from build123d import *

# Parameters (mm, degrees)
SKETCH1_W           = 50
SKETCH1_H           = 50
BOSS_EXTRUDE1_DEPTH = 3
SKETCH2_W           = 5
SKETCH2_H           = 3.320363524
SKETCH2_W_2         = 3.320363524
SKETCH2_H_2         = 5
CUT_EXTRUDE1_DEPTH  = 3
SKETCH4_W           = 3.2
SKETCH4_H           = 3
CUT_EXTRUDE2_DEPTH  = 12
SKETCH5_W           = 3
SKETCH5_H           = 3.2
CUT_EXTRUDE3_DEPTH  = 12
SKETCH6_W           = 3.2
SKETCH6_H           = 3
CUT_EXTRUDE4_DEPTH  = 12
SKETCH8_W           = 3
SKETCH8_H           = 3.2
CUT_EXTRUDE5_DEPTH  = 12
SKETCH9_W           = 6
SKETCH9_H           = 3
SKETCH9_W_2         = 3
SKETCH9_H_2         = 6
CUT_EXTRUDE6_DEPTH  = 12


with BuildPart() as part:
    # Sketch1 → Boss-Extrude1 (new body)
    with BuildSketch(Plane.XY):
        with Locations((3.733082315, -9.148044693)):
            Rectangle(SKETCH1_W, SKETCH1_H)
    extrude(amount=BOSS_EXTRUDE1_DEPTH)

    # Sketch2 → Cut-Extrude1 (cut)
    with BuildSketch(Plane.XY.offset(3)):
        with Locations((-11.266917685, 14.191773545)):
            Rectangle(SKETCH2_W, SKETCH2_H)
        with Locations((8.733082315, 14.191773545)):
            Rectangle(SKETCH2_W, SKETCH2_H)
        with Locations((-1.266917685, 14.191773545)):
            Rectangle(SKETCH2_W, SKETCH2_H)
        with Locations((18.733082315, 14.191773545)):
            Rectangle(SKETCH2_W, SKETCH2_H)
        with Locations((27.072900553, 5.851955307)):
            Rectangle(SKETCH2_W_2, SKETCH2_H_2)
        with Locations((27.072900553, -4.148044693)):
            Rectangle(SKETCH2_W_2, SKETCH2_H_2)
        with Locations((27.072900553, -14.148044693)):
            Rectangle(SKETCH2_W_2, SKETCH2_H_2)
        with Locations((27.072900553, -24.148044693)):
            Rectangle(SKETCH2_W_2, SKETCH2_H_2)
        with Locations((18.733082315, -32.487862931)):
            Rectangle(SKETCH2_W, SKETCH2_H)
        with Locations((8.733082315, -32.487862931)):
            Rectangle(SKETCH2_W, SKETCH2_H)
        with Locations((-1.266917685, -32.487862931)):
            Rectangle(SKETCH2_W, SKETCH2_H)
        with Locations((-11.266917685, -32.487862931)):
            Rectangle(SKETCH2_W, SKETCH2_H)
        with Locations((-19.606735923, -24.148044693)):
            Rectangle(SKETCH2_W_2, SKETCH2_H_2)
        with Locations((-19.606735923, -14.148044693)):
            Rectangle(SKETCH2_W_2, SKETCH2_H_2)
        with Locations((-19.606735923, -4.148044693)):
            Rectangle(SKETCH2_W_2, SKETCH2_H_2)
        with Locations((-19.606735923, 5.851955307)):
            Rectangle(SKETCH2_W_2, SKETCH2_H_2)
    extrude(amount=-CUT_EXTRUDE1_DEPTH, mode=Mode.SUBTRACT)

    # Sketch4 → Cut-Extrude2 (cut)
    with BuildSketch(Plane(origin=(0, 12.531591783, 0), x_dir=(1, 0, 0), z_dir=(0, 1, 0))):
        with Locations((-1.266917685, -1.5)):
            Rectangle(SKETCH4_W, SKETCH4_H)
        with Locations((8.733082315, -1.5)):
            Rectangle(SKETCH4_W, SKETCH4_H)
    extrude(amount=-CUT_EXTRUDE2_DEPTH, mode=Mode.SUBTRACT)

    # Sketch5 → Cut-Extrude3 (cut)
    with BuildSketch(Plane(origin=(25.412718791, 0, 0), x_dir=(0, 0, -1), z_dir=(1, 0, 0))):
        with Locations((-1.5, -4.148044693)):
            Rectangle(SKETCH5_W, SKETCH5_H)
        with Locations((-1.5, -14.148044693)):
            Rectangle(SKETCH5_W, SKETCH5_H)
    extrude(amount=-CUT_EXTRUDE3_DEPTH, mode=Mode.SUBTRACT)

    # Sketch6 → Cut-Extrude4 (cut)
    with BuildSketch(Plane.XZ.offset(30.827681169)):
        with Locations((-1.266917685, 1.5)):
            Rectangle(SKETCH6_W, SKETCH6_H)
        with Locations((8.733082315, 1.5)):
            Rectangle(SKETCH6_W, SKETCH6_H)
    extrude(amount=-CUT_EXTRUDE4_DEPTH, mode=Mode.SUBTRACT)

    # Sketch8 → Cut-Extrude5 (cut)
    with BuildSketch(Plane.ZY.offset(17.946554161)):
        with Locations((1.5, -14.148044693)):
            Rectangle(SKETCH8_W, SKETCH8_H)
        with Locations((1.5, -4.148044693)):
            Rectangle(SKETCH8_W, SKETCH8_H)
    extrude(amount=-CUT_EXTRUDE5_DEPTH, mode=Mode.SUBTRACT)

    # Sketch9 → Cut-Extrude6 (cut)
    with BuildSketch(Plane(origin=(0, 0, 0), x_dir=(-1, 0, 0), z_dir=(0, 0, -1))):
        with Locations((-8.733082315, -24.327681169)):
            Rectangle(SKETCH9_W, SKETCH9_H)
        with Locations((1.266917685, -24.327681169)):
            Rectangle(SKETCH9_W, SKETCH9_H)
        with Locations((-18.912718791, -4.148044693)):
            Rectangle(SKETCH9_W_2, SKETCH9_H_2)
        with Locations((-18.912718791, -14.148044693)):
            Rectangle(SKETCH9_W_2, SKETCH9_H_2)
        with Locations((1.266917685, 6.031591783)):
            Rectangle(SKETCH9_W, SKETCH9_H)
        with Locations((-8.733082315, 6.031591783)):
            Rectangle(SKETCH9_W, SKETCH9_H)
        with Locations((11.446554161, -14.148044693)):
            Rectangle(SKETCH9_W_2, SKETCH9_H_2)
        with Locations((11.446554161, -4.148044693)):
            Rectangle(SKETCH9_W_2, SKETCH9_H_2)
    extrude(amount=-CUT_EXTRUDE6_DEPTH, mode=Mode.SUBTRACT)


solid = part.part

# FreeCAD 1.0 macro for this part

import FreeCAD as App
import Part
import Sketcher
from FreeCAD import Vector

doc = App.newDocument("Part")
body = doc.addObject("PartDesign::Body", "Body")

sketch1 = body.newObject("Sketcher::SketchObject", "Sketch")
sketch1.AttachmentSupport = (doc.getObject("XY_Plane"), [""])
sketch1.MapMode = "FlatFace"
sketch1.addGeometry([
    Part.LineSegment(Vector(-21, 16, 0), Vector(-21, -34, 0)),
    Part.LineSegment(Vector(-21, -34, 0), Vector(29, -34, 0)),
    Part.LineSegment(Vector(29, -34, 0), Vector(29, 16, 0)),
    Part.LineSegment(Vector(29, 16, 0), Vector(-21, 16, 0)),
], False)
sketch1.addConstraint([
    Sketcher.Constraint("Coincident", 0, 2, 1, 1),
    Sketcher.Constraint("Coincident", 1, 2, 2, 1),
    Sketcher.Constraint("Coincident", 2, 2, 3, 1),
    Sketcher.Constraint("Coincident", 3, 2, 0, 1),
    Sketcher.Constraint("Vertical", 0),
    Sketcher.Constraint("Horizontal", 1),
    Sketcher.Constraint("Vertical", 2),
    Sketcher.Constraint("Horizontal", 3),
    Sketcher.Constraint("Equal", 3, 0),
    Sketcher.Constraint("DistanceX", 1, 1, 1, 2, 50.0),
    Sketcher.Constraint("DistanceX", 0, 2, -1, 1, 21.266918),
    Sketcher.Constraint("DistanceY", 0, 2, -1, 1, 34.148045),
])
pad1 = body.newObject("PartDesign::Pad", "Pad")
pad1.Profile = sketch1
pad1.Length = 3

sketch2 = body.newObject("Sketcher::SketchObject", "Sketch001")
sketch2.AttachmentSupport = (doc.getObject("XY_Plane"), [""])
sketch2.MapMode = "FlatFace"
sketch2.AttachmentOffset = App.Placement(Vector(0, 0, 3), App.Rotation())
sketch2.addGeometry([
    Part.LineSegment(Vector(-13.8, 15.9, 0), Vector(-13.8, 12.5, 0)),
    Part.LineSegment(Vector(-13.8, 12.5, 0), Vector(-8.8, 12.5, 0)),
    Part.LineSegment(Vector(-8.8, 12.5, 0), Vector(-8.8, 15.9, 0)),
    Part.LineSegment(Vector(-8.8, 15.9, 0), Vector(-13.8, 15.9, 0)),
    Part.LineSegment(Vector(6.2, 15.9, 0), Vector(6.2, 12.5, 0)),
    Part.LineSegment(Vector(6.2, 12.5, 0), Vector(11.2, 12.5, 0)),
    Part.LineSegment(Vector(11.2, 12.5, 0), Vector(11.2, 15.9, 0)),
    Part.LineSegment(Vector(11.2, 15.9, 0), Vector(6.2, 15.9, 0)),
    Part.LineSegment(Vector(-3.8, 15.9, 0), Vector(-3.8, 12.5, 0)),
    Part.LineSegment(Vector(-3.8, 12.5, 0), Vector(1.2, 12.5, 0)),
    Part.LineSegment(Vector(1.2, 12.5, 0), Vector(1.2, 15.9, 0)),
    Part.LineSegment(Vector(1.2, 15.9, 0), Vector(-3.8, 15.9, 0)),
    Part.LineSegment(Vector(16.2, 15.9, 0), Vector(16.2, 12.5, 0)),
    Part.LineSegment(Vector(16.2, 12.5, 0), Vector(21.2, 12.5, 0)),
    Part.LineSegment(Vector(21.2, 12.5, 0), Vector(21.2, 15.9, 0)),
    Part.LineSegment(Vector(21.2, 15.9, 0), Vector(16.2, 15.9, 0)),
    Part.LineSegment(Vector(25.4, 8.4, 0), Vector(25.4, 3.4, 0)),
    Part.LineSegment(Vector(25.4, 3.4, 0), Vector(28.7, 3.4, 0)),
    Part.LineSegment(Vector(28.7, 3.4, 0), Vector(28.7, 8.4, 0)),
    Part.LineSegment(Vector(28.7, 8.4, 0), Vector(25.4, 8.4, 0)),
    Part.LineSegment(Vector(25.4, -1.6, 0), Vector(25.4, -6.6, 0)),
    Part.LineSegment(Vector(25.4, -6.6, 0), Vector(28.7, -6.6, 0)),
    Part.LineSegment(Vector(28.7, -6.6, 0), Vector(28.7, -1.6, 0)),
    Part.LineSegment(Vector(28.7, -1.6, 0), Vector(25.4, -1.6, 0)),
    Part.LineSegment(Vector(25.4, -11.6, 0), Vector(25.4, -16.6, 0)),
    Part.LineSegment(Vector(25.4, -16.6, 0), Vector(28.7, -16.6, 0)),
    Part.LineSegment(Vector(28.7, -16.6, 0), Vector(28.7, -11.6, 0)),
    Part.LineSegment(Vector(28.7, -11.6, 0), Vector(25.4, -11.6, 0)),
    Part.LineSegment(Vector(25.4, -21.6, 0), Vector(25.4, -26.6, 0)),
    Part.LineSegment(Vector(25.4, -26.6, 0), Vector(28.7, -26.6, 0)),
    Part.LineSegment(Vector(28.7, -26.6, 0), Vector(28.7, -21.6, 0)),
    Part.LineSegment(Vector(28.7, -21.6, 0), Vector(25.4, -21.6, 0)),
    Part.LineSegment(Vector(16.2, -30.8, 0), Vector(16.2, -34.1, 0)),
    Part.LineSegment(Vector(16.2, -34.1, 0), Vector(21.2, -34.1, 0)),
    Part.LineSegment(Vector(21.2, -34.1, 0), Vector(21.2, -30.8, 0)),
    Part.LineSegment(Vector(21.2, -30.8, 0), Vector(16.2, -30.8, 0)),
    Part.LineSegment(Vector(6.2, -30.8, 0), Vector(6.2, -34.1, 0)),
    Part.LineSegment(Vector(6.2, -34.1, 0), Vector(11.2, -34.1, 0)),
    Part.LineSegment(Vector(11.2, -34.1, 0), Vector(11.2, -30.8, 0)),
    Part.LineSegment(Vector(11.2, -30.8, 0), Vector(6.2, -30.8, 0)),
    Part.LineSegment(Vector(-3.8, -30.8, 0), Vector(-3.8, -34.1, 0)),
    Part.LineSegment(Vector(-3.8, -34.1, 0), Vector(1.2, -34.1, 0)),
    Part.LineSegment(Vector(1.2, -34.1, 0), Vector(1.2, -30.8, 0)),
    Part.LineSegment(Vector(1.2, -30.8, 0), Vector(-3.8, -30.8, 0)),
    Part.LineSegment(Vector(-13.8, -30.8, 0), Vector(-13.8, -34.1, 0)),
    Part.LineSegment(Vector(-13.8, -34.1, 0), Vector(-8.8, -34.1, 0)),
    Part.LineSegment(Vector(-8.8, -34.1, 0), Vector(-8.8, -30.8, 0)),
    Part.LineSegment(Vector(-8.8, -30.8, 0), Vector(-13.8, -30.8, 0)),
    Part.LineSegment(Vector(-21.3, -21.6, 0), Vector(-21.3, -26.6, 0)),
    Part.LineSegment(Vector(-21.3, -26.6, 0), Vector(-17.9, -26.6, 0)),
    Part.LineSegment(Vector(-17.9, -26.6, 0), Vector(-17.9, -21.6, 0)),
    Part.LineSegment(Vector(-17.9, -21.6, 0), Vector(-21.3, -21.6, 0)),
    Part.LineSegment(Vector(-21.3, -11.6, 0), Vector(-21.3, -16.6, 0)),
    Part.LineSegment(Vector(-21.3, -16.6, 0), Vector(-17.9, -16.6, 0)),
    Part.LineSegment(Vector(-17.9, -16.6, 0), Vector(-17.9, -11.6, 0)),
    Part.LineSegment(Vector(-17.9, -11.6, 0), Vector(-21.3, -11.6, 0)),
    Part.LineSegment(Vector(-21.3, -1.6, 0), Vector(-21.3, -6.6, 0)),
    Part.LineSegment(Vector(-21.3, -6.6, 0), Vector(-17.9, -6.6, 0)),
    Part.LineSegment(Vector(-17.9, -6.6, 0), Vector(-17.9, -1.6, 0)),
    Part.LineSegment(Vector(-17.9, -1.6, 0), Vector(-21.3, -1.6, 0)),
    Part.LineSegment(Vector(-21.3, 8.4, 0), Vector(-21.3, 3.4, 0)),
    Part.LineSegment(Vector(-21.3, 3.4, 0), Vector(-17.9, 3.4, 0)),
    Part.LineSegment(Vector(-17.9, 3.4, 0), Vector(-17.9, 8.4, 0)),
    Part.LineSegment(Vector(-17.9, 8.4, 0), Vector(-21.3, 8.4, 0)),
], False)
sketch2.addConstraint([
    Sketcher.Constraint("Coincident", 0, 2, 1, 1),
    Sketcher.Constraint("Coincident", 1, 2, 2, 1),
    Sketcher.Constraint("Coincident", 2, 2, 3, 1),
    Sketcher.Constraint("Coincident", 3, 2, 0, 1),
    Sketcher.Constraint("Coincident", 4, 2, 5, 1),
    Sketcher.Constraint("Coincident", 5, 2, 6, 1),
    Sketcher.Constraint("Coincident", 6, 2, 7, 1),
    Sketcher.Constraint("Coincident", 7, 2, 4, 1),
    Sketcher.Constraint("Coincident", 8, 2, 9, 1),
    Sketcher.Constraint("Coincident", 9, 2, 10, 1),
    Sketcher.Constraint("Coincident", 10, 2, 11, 1),
    Sketcher.Constraint("Coincident", 11, 2, 8, 1),
    Sketcher.Constraint("Coincident", 12, 2, 13, 1),
    Sketcher.Constraint("Coincident", 13, 2, 14, 1),
    Sketcher.Constraint("Coincident", 14, 2, 15, 1),
    Sketcher.Constraint("Coincident", 15, 2, 12, 1),
    Sketcher.Constraint("Coincident", 16, 2, 17, 1),
    Sketcher.Constraint("Coincident", 17, 2, 18, 1),
    Sketcher.Constraint("Coincident", 18, 2, 19, 1),
    Sketcher.Constraint("Coincident", 19, 2, 16, 1),
    Sketcher.Constraint("Coincident", 20, 2, 21, 1),
    Sketcher.Constraint("Coincident", 21, 2, 22, 1),
    Sketcher.Constraint("Coincident", 22, 2, 23, 1),
    Sketcher.Constraint("Coincident", 23, 2, 20, 1),
    Sketcher.Constraint("Coincident", 24, 2, 25, 1),
    Sketcher.Constraint("Coincident", 25, 2, 26, 1),
    Sketcher.Constraint("Coincident", 26, 2, 27, 1),
    Sketcher.Constraint("Coincident", 27, 2, 24, 1),
    Sketcher.Constraint("Coincident", 28, 2, 29, 1),
    Sketcher.Constraint("Coincident", 29, 2, 30, 1),
    Sketcher.Constraint("Coincident", 30, 2, 31, 1),
    Sketcher.Constraint("Coincident", 31, 2, 28, 1),
    Sketcher.Constraint("Coincident", 32, 2, 33, 1),
    Sketcher.Constraint("Coincident", 33, 2, 34, 1),
    Sketcher.Constraint("Coincident", 34, 2, 35, 1),
    Sketcher.Constraint("Coincident", 35, 2, 32, 1),
    Sketcher.Constraint("Coincident", 36, 2, 37, 1),
    Sketcher.Constraint("Coincident", 37, 2, 38, 1),
    Sketcher.Constraint("Coincident", 38, 2, 39, 1),
    Sketcher.Constraint("Coincident", 39, 2, 36, 1),
    Sketcher.Constraint("Coincident", 40, 2, 41, 1),
    Sketcher.Constraint("Coincident", 41, 2, 42, 1),
    Sketcher.Constraint("Coincident", 42, 2, 43, 1),
    Sketcher.Constraint("Coincident", 43, 2, 40, 1),
    Sketcher.Constraint("Coincident", 44, 2, 45, 1),
    Sketcher.Constraint("Coincident", 45, 2, 46, 1),
    Sketcher.Constraint("Coincident", 46, 2, 47, 1),
    Sketcher.Constraint("Coincident", 47, 2, 44, 1),
    Sketcher.Constraint("Coincident", 48, 2, 49, 1),
    Sketcher.Constraint("Coincident", 49, 2, 50, 1),
    Sketcher.Constraint("Coincident", 50, 2, 51, 1),
    Sketcher.Constraint("Coincident", 51, 2, 48, 1),
    Sketcher.Constraint("Coincident", 52, 2, 53, 1),
    Sketcher.Constraint("Coincident", 53, 2, 54, 1),
    Sketcher.Constraint("Coincident", 54, 2, 55, 1),
    Sketcher.Constraint("Coincident", 55, 2, 52, 1),
    Sketcher.Constraint("Coincident", 56, 2, 57, 1),
    Sketcher.Constraint("Coincident", 57, 2, 58, 1),
    Sketcher.Constraint("Coincident", 58, 2, 59, 1),
    Sketcher.Constraint("Coincident", 59, 2, 56, 1),
    Sketcher.Constraint("Coincident", 60, 2, 61, 1),
    Sketcher.Constraint("Coincident", 61, 2, 62, 1),
    Sketcher.Constraint("Coincident", 62, 2, 63, 1),
    Sketcher.Constraint("Coincident", 63, 2, 60, 1),
    Sketcher.Constraint("Vertical", 0),
    Sketcher.Constraint("Horizontal", 1),
    Sketcher.Constraint("Vertical", 2),
    Sketcher.Constraint("Horizontal", 3),
    Sketcher.Constraint("Vertical", 4),
    Sketcher.Constraint("Horizontal", 5),
    Sketcher.Constraint("Vertical", 6),
    Sketcher.Constraint("Horizontal", 7),
    Sketcher.Constraint("Vertical", 8),
    Sketcher.Constraint("Horizontal", 9),
    Sketcher.Constraint("Vertical", 10),
    Sketcher.Constraint("Horizontal", 11),
    Sketcher.Constraint("Vertical", 12),
    Sketcher.Constraint("Horizontal", 13),
    Sketcher.Constraint("Vertical", 14),
    Sketcher.Constraint("Horizontal", 15),
    Sketcher.Constraint("Vertical", 16),
    Sketcher.Constraint("Horizontal", 17),
    Sketcher.Constraint("Vertical", 18),
    Sketcher.Constraint("Horizontal", 19),
    Sketcher.Constraint("Vertical", 20),
    Sketcher.Constraint("Horizontal", 21),
    Sketcher.Constraint("Vertical", 22),
    Sketcher.Constraint("Horizontal", 23),
    Sketcher.Constraint("Vertical", 24),
    Sketcher.Constraint("Horizontal", 25),
    Sketcher.Constraint("Vertical", 26),
    Sketcher.Constraint("Horizontal", 27),
    Sketcher.Constraint("Vertical", 28),
    Sketcher.Constraint("Horizontal", 29),
    Sketcher.Constraint("Vertical", 30),
    Sketcher.Constraint("Horizontal", 31),
    Sketcher.Constraint("Vertical", 32),
    Sketcher.Constraint("Horizontal", 33),
    Sketcher.Constraint("Vertical", 34),
    Sketcher.Constraint("Horizontal", 35),
    Sketcher.Constraint("Vertical", 36),
    Sketcher.Constraint("Horizontal", 37),
    Sketcher.Constraint("Vertical", 38),
    Sketcher.Constraint("Horizontal", 39),
    Sketcher.Constraint("Vertical", 40),
    Sketcher.Constraint("Horizontal", 41),
    Sketcher.Constraint("Vertical", 42),
    Sketcher.Constraint("Horizontal", 43),
    Sketcher.Constraint("Vertical", 44),
    Sketcher.Constraint("Horizontal", 45),
    Sketcher.Constraint("Vertical", 46),
    Sketcher.Constraint("Horizontal", 47),
    Sketcher.Constraint("Vertical", 48),
    Sketcher.Constraint("Horizontal", 49),
    Sketcher.Constraint("Vertical", 50),
    Sketcher.Constraint("Horizontal", 51),
    Sketcher.Constraint("Vertical", 52),
    Sketcher.Constraint("Horizontal", 53),
    Sketcher.Constraint("Vertical", 54),
    Sketcher.Constraint("Horizontal", 55),
    Sketcher.Constraint("Vertical", 56),
    Sketcher.Constraint("Horizontal", 57),
    Sketcher.Constraint("Vertical", 58),
    Sketcher.Constraint("Horizontal", 59),
    Sketcher.Constraint("Vertical", 60),
    Sketcher.Constraint("Horizontal", 61),
    Sketcher.Constraint("Vertical", 62),
    Sketcher.Constraint("Horizontal", 63),
    Sketcher.Constraint("Horizontal", 1, 2, 4, 2),
    Sketcher.Constraint("Horizontal", 3, 2, 6, 2),
    Sketcher.Constraint("Horizontal", 5, 2, 8, 2),
    Sketcher.Constraint("Horizontal", 7, 2, 10, 2),
    Sketcher.Constraint("Horizontal", 9, 2, 12, 2),
    Sketcher.Constraint("Horizontal", 11, 2, 14, 2),
    Sketcher.Constraint("Horizontal", 33, 2, 36, 2),
    Sketcher.Constraint("Horizontal", 35, 2, 38, 2),
    Sketcher.Constraint("Horizontal", 37, 2, 40, 2),
    Sketcher.Constraint("Horizontal", 39, 2, 42, 2),
    Sketcher.Constraint("Horizontal", 41, 2, 44, 2),
    Sketcher.Constraint("Horizontal", 43, 2, 46, 2),
    Sketcher.Constraint("Horizontal", 29, 2, 48, 2),
    Sketcher.Constraint("Horizontal", 31, 2, 50, 2),
    Sketcher.Constraint("Horizontal", 25, 2, 52, 2),
    Sketcher.Constraint("Horizontal", 27, 2, 54, 2),
    Sketcher.Constraint("Horizontal", 21, 2, 56, 2),
    Sketcher.Constraint("Horizontal", 23, 2, 58, 2),
    Sketcher.Constraint("Horizontal", 17, 2, 60, 2),
    Sketcher.Constraint("Horizontal", 19, 2, 62, 2),
    Sketcher.Constraint("Vertical", 19, 2, 20, 2),
    Sketcher.Constraint("Vertical", 18, 2, 21, 2),
    Sketcher.Constraint("Vertical", 23, 2, 24, 2),
    Sketcher.Constraint("Vertical", 22, 2, 25, 2),
    Sketcher.Constraint("Vertical", 27, 2, 28, 2),
    Sketcher.Constraint("Vertical", 26, 2, 29, 2),
    Sketcher.Constraint("Vertical", 15, 2, 32, 2),
    Sketcher.Constraint("Vertical", 14, 2, 33, 2),
    Sketcher.Constraint("Vertical", 7, 2, 36, 2),
    Sketcher.Constraint("Vertical", 6, 2, 37, 2),
    Sketcher.Constraint("Vertical", 11, 2, 40, 2),
    Sketcher.Constraint("Vertical", 10, 2, 41, 2),
    Sketcher.Constraint("Vertical", 3, 2, 44, 2),
    Sketcher.Constraint("Vertical", 2, 2, 45, 2),
    Sketcher.Constraint("Vertical", 51, 2, 52, 2),
    Sketcher.Constraint("Vertical", 50, 2, 53, 2),
    Sketcher.Constraint("Vertical", 55, 2, 56, 2),
    Sketcher.Constraint("Vertical", 54, 2, 57, 2),
    Sketcher.Constraint("Vertical", 59, 2, 60, 2),
    Sketcher.Constraint("Vertical", 58, 2, 61, 2),
    Sketcher.Constraint("Equal", 3, 5),
    Sketcher.Constraint("Equal", 7, 9),
    Sketcher.Constraint("Equal", 11, 13),
    Sketcher.Constraint("Equal", 31, 49),
    Sketcher.Constraint("Equal", 63, 0),
    Sketcher.Constraint("Equal", 47, 16),
    Sketcher.Constraint("Equal", 18, 20),
    Sketcher.Constraint("Equal", 22, 24),
    Sketcher.Constraint("Equal", 26, 28),
    Sketcher.Constraint("Equal", 14, 32),
    Sketcher.Constraint("DistanceX", 1, 1, 1, 2, 5.0),
    Sketcher.Constraint("DistanceX", 17, 1, 17, 2, 3.320364),
    Sketcher.Constraint("DistanceY", -1, 1, 0, 2, 12.531592),
    Sketcher.Constraint("DistanceX", -1, 1, 16, 2, 25.412719),
    Sketcher.Constraint("DistanceY", 34, 2, -1, 1, 30.827681),
    Sketcher.Constraint("DistanceX", 0, 2, -1, 1, 13.766918),
    Sketcher.Constraint("DistanceX", -1, 1, 4, 2, 6.233082),
    Sketcher.Constraint("DistanceX", 8, 2, -1, 1, 3.766918),
    Sketcher.Constraint("DistanceX", -1, 1, 12, 2, 16.233082),
    Sketcher.Constraint("DistanceY", -1, 1, 16, 2, 3.351955),
    Sketcher.Constraint("DistanceY", 20, 2, -1, 1, 6.648045),
    Sketcher.Constraint("DistanceY", 24, 2, -1, 1, 16.648045),
    Sketcher.Constraint("DistanceY", 28, 2, -1, 1, 26.648045),
    Sketcher.Constraint("DistanceX", 48, 2, -1, 1, 21.266918),
])
pocket1 = body.newObject("PartDesign::Pocket", "Pocket")
pocket1.Profile = sketch2
pocket1.Length = 3

sketch3 = body.newObject("Sketcher::SketchObject", "Sketch002")
sketch3.AttachmentSupport = (doc.getObject("XZ_Plane"), [""])
sketch3.MapMode = "FlatFace"
sketch3.AttachmentOffset = App.Placement(Vector(0, 0, -12.531592), App.Rotation())
sketch3.addGeometry([
    Part.LineSegment(Vector(-2.9, 0, 0), Vector(-2.9, 3, 0)),
    Part.LineSegment(Vector(-2.9, 3, 0), Vector(0.3, 3, 0)),
    Part.LineSegment(Vector(0.3, 3, 0), Vector(0.3, 0, 0)),
    Part.LineSegment(Vector(0.3, 0, 0), Vector(-2.9, 0, 0)),
    Part.LineSegment(Vector(7.1, 0, 0), Vector(7.1, 3, 0)),
    Part.LineSegment(Vector(7.1, 3, 0), Vector(10.3, 3, 0)),
    Part.LineSegment(Vector(10.3, 3, 0), Vector(10.3, 0, 0)),
    Part.LineSegment(Vector(10.3, 0, 0), Vector(7.1, 0, 0)),
], False)
sketch3.addConstraint([
    Sketcher.Constraint("Coincident", 0, 2, 1, 1),
    Sketcher.Constraint("Coincident", 1, 2, 2, 1),
    Sketcher.Constraint("Coincident", 2, 2, 3, 1),
    Sketcher.Constraint("Coincident", 3, 2, 0, 1),
    Sketcher.Constraint("Coincident", 4, 2, 5, 1),
    Sketcher.Constraint("Coincident", 5, 2, 6, 1),
    Sketcher.Constraint("Coincident", 6, 2, 7, 1),
    Sketcher.Constraint("Coincident", 7, 2, 4, 1),
    Sketcher.Constraint("Vertical", 0),
    Sketcher.Constraint("Horizontal", 1),
    Sketcher.Constraint("Vertical", 2),
    Sketcher.Constraint("Horizontal", 3),
    Sketcher.Constraint("Vertical", 4),
    Sketcher.Constraint("Horizontal", 5),
    Sketcher.Constraint("Vertical", 6),
    Sketcher.Constraint("Horizontal", 7),
    Sketcher.Constraint("PointOnObject", 2, 2, -1),
    Sketcher.Constraint("PointOnObject", 6, 2, -1),
    Sketcher.Constraint("Horizontal", 1, 2, 4, 2),
    Sketcher.Constraint("Equal", 3, 5),
    Sketcher.Constraint("DistanceY", 0, 1, 0, 2, 3.0),
    Sketcher.Constraint("DistanceX", 1, 1, 1, 2, 3.2),
    Sketcher.Constraint("DistanceX", 0, 2, 4, 2, 10.0),
    Sketcher.Constraint("DistanceX", 0, 2, -1, 1, 2.866918),
])
pocket2 = body.newObject("PartDesign::Pocket", "Pocket001")
pocket2.Profile = sketch3
pocket2.Length = 12
pocket2.Reversed = True

sketch4 = body.newObject("Sketcher::SketchObject", "Sketch003")
sketch4.AttachmentSupport = (doc.getObject("YZ_Plane"), [""])
sketch4.MapMode = "FlatFace"
sketch4.AttachmentOffset = App.Placement(Vector(0, 0, 25.412719), App.Rotation())
sketch4.addGeometry([
    Part.LineSegment(Vector(-2.5, 3, 0), Vector(-5.7, 3, 0)),
    Part.LineSegment(Vector(-5.7, 3, 0), Vector(-5.7, 0, 0)),
    Part.LineSegment(Vector(-5.7, 0, 0), Vector(-2.5, 0, 0)),
    Part.LineSegment(Vector(-2.5, 0, 0), Vector(-2.5, 3, 0)),
    Part.LineSegment(Vector(-12.5, 3, 0), Vector(-15.7, 3, 0)),
    Part.LineSegment(Vector(-15.7, 3, 0), Vector(-15.7, 0, 0)),
    Part.LineSegment(Vector(-15.7, 0, 0), Vector(-12.5, 0, 0)),
    Part.LineSegment(Vector(-12.5, 0, 0), Vector(-12.5, 3, 0)),
], False)
sketch4.addConstraint([
    Sketcher.Constraint("Coincident", 0, 2, 1, 1),
    Sketcher.Constraint("Coincident", 1, 2, 2, 1),
    Sketcher.Constraint("Coincident", 2, 2, 3, 1),
    Sketcher.Constraint("Coincident", 3, 2, 0, 1),
    Sketcher.Constraint("Coincident", 4, 2, 5, 1),
    Sketcher.Constraint("Coincident", 5, 2, 6, 1),
    Sketcher.Constraint("Coincident", 6, 2, 7, 1),
    Sketcher.Constraint("Coincident", 7, 2, 4, 1),
    Sketcher.Constraint("Horizontal", 0),
    Sketcher.Constraint("Vertical", 1),
    Sketcher.Constraint("Horizontal", 2),
    Sketcher.Constraint("Vertical", 3),
    Sketcher.Constraint("Horizontal", 4),
    Sketcher.Constraint("Vertical", 5),
    Sketcher.Constraint("Horizontal", 6),
    Sketcher.Constraint("Vertical", 7),
    Sketcher.Constraint("PointOnObject", 1, 2, -1),
    Sketcher.Constraint("PointOnObject", 5, 2, -1),
    Sketcher.Constraint("Horizontal", 3, 2, 4, 2),
    Sketcher.Constraint("Equal", 2, 4),
    Sketcher.Constraint("DistanceY", 1, 2, 1, 1, 3.0),
    Sketcher.Constraint("DistanceX", 0, 2, 0, 1, 3.2),
    Sketcher.Constraint("DistanceX", 4, 2, 0, 2, 10.0),
    Sketcher.Constraint("DistanceX", 0, 2, -1, 1, 5.748045),
])
pocket3 = body.newObject("PartDesign::Pocket", "Pocket002")
pocket3.Profile = sketch4
pocket3.Length = 12

sketch5 = body.newObject("Sketcher::SketchObject", "Sketch004")
sketch5.AttachmentSupport = (doc.getObject("XZ_Plane"), [""])
sketch5.MapMode = "FlatFace"
sketch5.AttachmentOffset = App.Placement(Vector(0, 0, 30.827681), App.Rotation())
sketch5.addGeometry([
    Part.LineSegment(Vector(-2.9, 3, 0), Vector(-2.9, 0, 0)),
    Part.LineSegment(Vector(-2.9, 0, 0), Vector(0.3, 0, 0)),
    Part.LineSegment(Vector(0.3, 0, 0), Vector(0.3, 3, 0)),
    Part.LineSegment(Vector(0.3, 3, 0), Vector(-2.9, 3, 0)),
    Part.LineSegment(Vector(7.1, 3, 0), Vector(7.1, 0, 0)),
    Part.LineSegment(Vector(7.1, 0, 0), Vector(10.3, 0, 0)),
    Part.LineSegment(Vector(10.3, 0, 0), Vector(10.3, 3, 0)),
    Part.LineSegment(Vector(10.3, 3, 0), Vector(7.1, 3, 0)),
], False)
sketch5.addConstraint([
    Sketcher.Constraint("Coincident", 0, 2, 1, 1),
    Sketcher.Constraint("Coincident", 1, 2, 2, 1),
    Sketcher.Constraint("Coincident", 2, 2, 3, 1),
    Sketcher.Constraint("Coincident", 3, 2, 0, 1),
    Sketcher.Constraint("Coincident", 4, 2, 5, 1),
    Sketcher.Constraint("Coincident", 5, 2, 6, 1),
    Sketcher.Constraint("Coincident", 6, 2, 7, 1),
    Sketcher.Constraint("Coincident", 7, 2, 4, 1),
    Sketcher.Constraint("Vertical", 0),
    Sketcher.Constraint("Horizontal", 1),
    Sketcher.Constraint("Vertical", 2),
    Sketcher.Constraint("Horizontal", 3),
    Sketcher.Constraint("Vertical", 4),
    Sketcher.Constraint("Horizontal", 5),
    Sketcher.Constraint("Vertical", 6),
    Sketcher.Constraint("Horizontal", 7),
    Sketcher.Constraint("PointOnObject", 0, 2, -1),
    Sketcher.Constraint("PointOnObject", 4, 2, -1),
    Sketcher.Constraint("Horizontal", 3, 2, 6, 2),
    Sketcher.Constraint("Equal", 3, 5),
    Sketcher.Constraint("DistanceY", 0, 2, 0, 1, 3.0),
    Sketcher.Constraint("DistanceX", 1, 1, 1, 2, 3.2),
    Sketcher.Constraint("DistanceX", 0, 2, 4, 2, 10.0),
    Sketcher.Constraint("DistanceX", 0, 2, -1, 1, 2.866918),
])
pocket4 = body.newObject("PartDesign::Pocket", "Pocket003")
pocket4.Profile = sketch5
pocket4.Length = 12

sketch6 = body.newObject("Sketcher::SketchObject", "Sketch005")
sketch6.AttachmentSupport = (doc.getObject("YZ_Plane"), [""])
sketch6.MapMode = "FlatFace"
sketch6.AttachmentOffset = App.Placement(Vector(0, 0, -17.946554), App.Rotation())
sketch6.addGeometry([
    Part.LineSegment(Vector(-12.5, 0, 0), Vector(-15.7, 0, 0)),
    Part.LineSegment(Vector(-15.7, 0, 0), Vector(-15.7, 3, 0)),
    Part.LineSegment(Vector(-15.7, 3, 0), Vector(-12.5, 3, 0)),
    Part.LineSegment(Vector(-12.5, 3, 0), Vector(-12.5, 0, 0)),
    Part.LineSegment(Vector(-2.5, 0, 0), Vector(-5.7, 0, 0)),
    Part.LineSegment(Vector(-5.7, 0, 0), Vector(-5.7, 3, 0)),
    Part.LineSegment(Vector(-5.7, 3, 0), Vector(-2.5, 3, 0)),
    Part.LineSegment(Vector(-2.5, 3, 0), Vector(-2.5, 0, 0)),
], False)
sketch6.addConstraint([
    Sketcher.Constraint("Coincident", 0, 2, 1, 1),
    Sketcher.Constraint("Coincident", 1, 2, 2, 1),
    Sketcher.Constraint("Coincident", 2, 2, 3, 1),
    Sketcher.Constraint("Coincident", 3, 2, 0, 1),
    Sketcher.Constraint("Coincident", 4, 2, 5, 1),
    Sketcher.Constraint("Coincident", 5, 2, 6, 1),
    Sketcher.Constraint("Coincident", 6, 2, 7, 1),
    Sketcher.Constraint("Coincident", 7, 2, 4, 1),
    Sketcher.Constraint("Horizontal", 0),
    Sketcher.Constraint("Vertical", 1),
    Sketcher.Constraint("Horizontal", 2),
    Sketcher.Constraint("Vertical", 3),
    Sketcher.Constraint("Horizontal", 4),
    Sketcher.Constraint("Vertical", 5),
    Sketcher.Constraint("Horizontal", 6),
    Sketcher.Constraint("Vertical", 7),
    Sketcher.Constraint("PointOnObject", 0, 2, -1),
    Sketcher.Constraint("PointOnObject", 4, 2, -1),
    Sketcher.Constraint("Horizontal", 2, 2, 5, 2),
    Sketcher.Constraint("Equal", 2, 4),
    Sketcher.Constraint("DistanceY", 1, 1, 1, 2, 3.0),
    Sketcher.Constraint("DistanceX", 0, 2, 0, 1, 3.2),
    Sketcher.Constraint("DistanceX", 0, 2, 4, 2, 10.0),
    Sketcher.Constraint("DistanceX", 0, 2, -1, 1, 15.748045),
])
pocket5 = body.newObject("PartDesign::Pocket", "Pocket004")
pocket5.Profile = sketch6
pocket5.Length = 12
pocket5.Reversed = True

sketch7 = body.newObject("Sketcher::SketchObject", "Sketch006")
sketch7.AttachmentSupport = (doc.getObject("XY_Plane"), [""])
sketch7.MapMode = "FlatFace"
sketch7.addGeometry([
    Part.LineSegment(Vector(11.7, -22.8, 0), Vector(11.7, -25.8, 0)),
    Part.LineSegment(Vector(11.7, -25.8, 0), Vector(5.7, -25.8, 0)),
    Part.LineSegment(Vector(5.7, -25.8, 0), Vector(5.7, -22.8, 0)),
    Part.LineSegment(Vector(5.7, -22.8, 0), Vector(11.7, -22.8, 0)),
    Part.LineSegment(Vector(1.7, -22.8, 0), Vector(1.7, -25.8, 0)),
    Part.LineSegment(Vector(1.7, -25.8, 0), Vector(-4.3, -25.8, 0)),
    Part.LineSegment(Vector(-4.3, -25.8, 0), Vector(-4.3, -22.8, 0)),
    Part.LineSegment(Vector(-4.3, -22.8, 0), Vector(1.7, -22.8, 0)),
    Part.LineSegment(Vector(20.4, -1.1, 0), Vector(20.4, -7.1, 0)),
    Part.LineSegment(Vector(20.4, -7.1, 0), Vector(17.4, -7.1, 0)),
    Part.LineSegment(Vector(17.4, -7.1, 0), Vector(17.4, -1.1, 0)),
    Part.LineSegment(Vector(17.4, -1.1, 0), Vector(20.4, -1.1, 0)),
    Part.LineSegment(Vector(20.4, -11.1, 0), Vector(20.4, -17.1, 0)),
    Part.LineSegment(Vector(20.4, -17.1, 0), Vector(17.4, -17.1, 0)),
    Part.LineSegment(Vector(17.4, -17.1, 0), Vector(17.4, -11.1, 0)),
    Part.LineSegment(Vector(17.4, -11.1, 0), Vector(20.4, -11.1, 0)),
    Part.LineSegment(Vector(1.7, 7.5, 0), Vector(1.7, 4.5, 0)),
    Part.LineSegment(Vector(1.7, 4.5, 0), Vector(-4.3, 4.5, 0)),
    Part.LineSegment(Vector(-4.3, 4.5, 0), Vector(-4.3, 7.5, 0)),
    Part.LineSegment(Vector(-4.3, 7.5, 0), Vector(1.7, 7.5, 0)),
    Part.LineSegment(Vector(11.7, 7.5, 0), Vector(11.7, 4.5, 0)),
    Part.LineSegment(Vector(11.7, 4.5, 0), Vector(5.7, 4.5, 0)),
    Part.LineSegment(Vector(5.7, 4.5, 0), Vector(5.7, 7.5, 0)),
    Part.LineSegment(Vector(5.7, 7.5, 0), Vector(11.7, 7.5, 0)),
    Part.LineSegment(Vector(-9.9, -11.1, 0), Vector(-9.9, -17.1, 0)),
    Part.LineSegment(Vector(-9.9, -17.1, 0), Vector(-12.9, -17.1, 0)),
    Part.LineSegment(Vector(-12.9, -17.1, 0), Vector(-12.9, -11.1, 0)),
    Part.LineSegment(Vector(-12.9, -11.1, 0), Vector(-9.9, -11.1, 0)),
    Part.LineSegment(Vector(-9.9, -1.1, 0), Vector(-9.9, -7.1, 0)),
    Part.LineSegment(Vector(-9.9, -7.1, 0), Vector(-12.9, -7.1, 0)),
    Part.LineSegment(Vector(-12.9, -7.1, 0), Vector(-12.9, -1.1, 0)),
    Part.LineSegment(Vector(-12.9, -1.1, 0), Vector(-9.9, -1.1, 0)),
], False)
sketch7.addConstraint([
    Sketcher.Constraint("Coincident", 0, 2, 1, 1),
    Sketcher.Constraint("Coincident", 1, 2, 2, 1),
    Sketcher.Constraint("Coincident", 2, 2, 3, 1),
    Sketcher.Constraint("Coincident", 3, 2, 0, 1),
    Sketcher.Constraint("Coincident", 4, 2, 5, 1),
    Sketcher.Constraint("Coincident", 5, 2, 6, 1),
    Sketcher.Constraint("Coincident", 6, 2, 7, 1),
    Sketcher.Constraint("Coincident", 7, 2, 4, 1),
    Sketcher.Constraint("Coincident", 8, 2, 9, 1),
    Sketcher.Constraint("Coincident", 9, 2, 10, 1),
    Sketcher.Constraint("Coincident", 10, 2, 11, 1),
    Sketcher.Constraint("Coincident", 11, 2, 8, 1),
    Sketcher.Constraint("Coincident", 12, 2, 13, 1),
    Sketcher.Constraint("Coincident", 13, 2, 14, 1),
    Sketcher.Constraint("Coincident", 14, 2, 15, 1),
    Sketcher.Constraint("Coincident", 15, 2, 12, 1),
    Sketcher.Constraint("Coincident", 16, 2, 17, 1),
    Sketcher.Constraint("Coincident", 17, 2, 18, 1),
    Sketcher.Constraint("Coincident", 18, 2, 19, 1),
    Sketcher.Constraint("Coincident", 19, 2, 16, 1),
    Sketcher.Constraint("Coincident", 20, 2, 21, 1),
    Sketcher.Constraint("Coincident", 21, 2, 22, 1),
    Sketcher.Constraint("Coincident", 22, 2, 23, 1),
    Sketcher.Constraint("Coincident", 23, 2, 20, 1),
    Sketcher.Constraint("Coincident", 24, 2, 25, 1),
    Sketcher.Constraint("Coincident", 25, 2, 26, 1),
    Sketcher.Constraint("Coincident", 26, 2, 27, 1),
    Sketcher.Constraint("Coincident", 27, 2, 24, 1),
    Sketcher.Constraint("Coincident", 28, 2, 29, 1),
    Sketcher.Constraint("Coincident", 29, 2, 30, 1),
    Sketcher.Constraint("Coincident", 30, 2, 31, 1),
    Sketcher.Constraint("Coincident", 31, 2, 28, 1),
    Sketcher.Constraint("Vertical", 0),
    Sketcher.Constraint("Horizontal", 1),
    Sketcher.Constraint("Vertical", 2),
    Sketcher.Constraint("Horizontal", 3),
    Sketcher.Constraint("Vertical", 4),
    Sketcher.Constraint("Horizontal", 5),
    Sketcher.Constraint("Vertical", 6),
    Sketcher.Constraint("Horizontal", 7),
    Sketcher.Constraint("Vertical", 8),
    Sketcher.Constraint("Horizontal", 9),
    Sketcher.Constraint("Vertical", 10),
    Sketcher.Constraint("Horizontal", 11),
    Sketcher.Constraint("Vertical", 12),
    Sketcher.Constraint("Horizontal", 13),
    Sketcher.Constraint("Vertical", 14),
    Sketcher.Constraint("Horizontal", 15),
    Sketcher.Constraint("Vertical", 16),
    Sketcher.Constraint("Horizontal", 17),
    Sketcher.Constraint("Vertical", 18),
    Sketcher.Constraint("Horizontal", 19),
    Sketcher.Constraint("Vertical", 20),
    Sketcher.Constraint("Horizontal", 21),
    Sketcher.Constraint("Vertical", 22),
    Sketcher.Constraint("Horizontal", 23),
    Sketcher.Constraint("Vertical", 24),
    Sketcher.Constraint("Horizontal", 25),
    Sketcher.Constraint("Vertical", 26),
    Sketcher.Constraint("Horizontal", 27),
    Sketcher.Constraint("Vertical", 28),
    Sketcher.Constraint("Horizontal", 29),
    Sketcher.Constraint("Vertical", 30),
    Sketcher.Constraint("Horizontal", 31),
    Sketcher.Constraint("Horizontal", 1, 2, 4, 2),
    Sketcher.Constraint("Horizontal", 3, 2, 6, 2),
    Sketcher.Constraint("Horizontal", 17, 2, 20, 2),
    Sketcher.Constraint("Horizontal", 19, 2, 22, 2),
    Sketcher.Constraint("Horizontal", 13, 2, 24, 2),
    Sketcher.Constraint("Horizontal", 15, 2, 26, 2),
    Sketcher.Constraint("Horizontal", 9, 2, 28, 2),
    Sketcher.Constraint("Horizontal", 11, 2, 30, 2),
    Sketcher.Constraint("Vertical", 11, 2, 12, 2),
    Sketcher.Constraint("Vertical", 10, 2, 13, 2),
    Sketcher.Constraint("Vertical", 7, 2, 16, 2),
    Sketcher.Constraint("Vertical", 6, 2, 17, 2),
    Sketcher.Constraint("Vertical", 3, 2, 20, 2),
    Sketcher.Constraint("Vertical", 2, 2, 21, 2),
    Sketcher.Constraint("Vertical", 27, 2, 28, 2),
    Sketcher.Constraint("Vertical", 26, 2, 29, 2),
    Sketcher.Constraint("Equal", 3, 5),
    Sketcher.Constraint("Equal", 15, 25),
    Sketcher.Constraint("Equal", 31, 0),
    Sketcher.Constraint("Equal", 23, 8),
    Sketcher.Constraint("Equal", 10, 12),
    Sketcher.Constraint("Equal", 6, 16),
    Sketcher.Constraint("DistanceX", 1, 2, 1, 1, 6.0),
    Sketcher.Constraint("DistanceX", 9, 2, 9, 1, 3.0),
    Sketcher.Constraint("DistanceX", 4, 2, 1, 2, 4.0),
    Sketcher.Constraint("DistanceY", 12, 2, 8, 2, 10.0),
    Sketcher.Constraint("DistanceY", 0, 2, -1, 1, 25.827681),
    Sketcher.Constraint("DistanceX", -1, 1, 8, 2, 20.412719),
    Sketcher.Constraint("DistanceY", -1, 1, 16, 2, 4.531592),
    Sketcher.Constraint("DistanceX", -1, 1, 0, 2, 11.733082),
    Sketcher.Constraint("DistanceY", 8, 2, -1, 1, 7.148045),
    Sketcher.Constraint("DistanceX", 24, 2, -1, 1, 9.946554),
])
pocket6 = body.newObject("PartDesign::Pocket", "Pocket005")
pocket6.Profile = sketch7
pocket6.Length = 12
pocket6.Reversed = True

doc.recompute()
